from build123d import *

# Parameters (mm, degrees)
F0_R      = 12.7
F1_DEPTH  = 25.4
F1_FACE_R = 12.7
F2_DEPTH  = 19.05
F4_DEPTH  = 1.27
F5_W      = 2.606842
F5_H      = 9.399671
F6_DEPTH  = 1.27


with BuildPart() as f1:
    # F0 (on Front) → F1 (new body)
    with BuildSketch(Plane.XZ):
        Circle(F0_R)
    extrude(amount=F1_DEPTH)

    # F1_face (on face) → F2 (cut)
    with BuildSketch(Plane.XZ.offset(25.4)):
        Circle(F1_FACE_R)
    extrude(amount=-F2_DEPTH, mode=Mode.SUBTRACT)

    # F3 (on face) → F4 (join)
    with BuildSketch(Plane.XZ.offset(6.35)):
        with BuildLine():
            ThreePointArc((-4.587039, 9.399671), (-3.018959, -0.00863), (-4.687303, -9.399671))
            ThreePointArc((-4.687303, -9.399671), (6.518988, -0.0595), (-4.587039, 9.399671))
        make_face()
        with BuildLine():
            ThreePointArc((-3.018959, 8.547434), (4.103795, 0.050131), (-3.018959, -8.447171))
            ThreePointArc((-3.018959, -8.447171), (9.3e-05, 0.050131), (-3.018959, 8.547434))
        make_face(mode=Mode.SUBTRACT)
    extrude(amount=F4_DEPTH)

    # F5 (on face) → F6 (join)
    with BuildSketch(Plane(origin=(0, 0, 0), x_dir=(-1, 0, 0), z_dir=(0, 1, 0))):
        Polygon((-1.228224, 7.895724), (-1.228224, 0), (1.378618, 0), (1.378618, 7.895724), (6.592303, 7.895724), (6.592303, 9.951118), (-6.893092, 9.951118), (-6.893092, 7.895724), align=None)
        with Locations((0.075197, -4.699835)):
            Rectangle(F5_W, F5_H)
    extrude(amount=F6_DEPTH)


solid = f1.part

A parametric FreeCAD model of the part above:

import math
import FreeCAD as App
import Part
import Sketcher
from FreeCAD import Vector
Q = App.Units.Quantity


def add_polygon(sketch, points):
    """Adds a closed chain of lines whose ends are joined by coincident constraints."""
    first, n = sketch.GeometryCount, len(points)
    for a, b in zip(points, points[1:] + points[:1]):
        sketch.addGeometry(Part.LineSegment(App.Vector(*a, 0), App.Vector(*b, 0)), False)
    for i in range(n):
        sketch.addConstraint(Sketcher.Constraint("Coincident", first + i, 2, first + (i + 1) % n, 1))

doc = App.newDocument("Part")
body = doc.addObject("PartDesign::Body", "Body")

sketch1 = body.newObject("Sketcher::SketchObject", "Sketch")
sketch1.AttachmentSupport = (doc.getObject("XZ_Plane"), [""])
sketch1.MapMode = "FlatFace"
sketch1.addGeometry(Part.Circle(Vector(0, 0, 0), Vector(0, 0, 1), 13), False)
sketch1.addConstraint(Sketcher.Constraint("Coincident", 0, 3, -1, 1))
sketch1.addConstraint(Sketcher.Constraint("Diameter", 0, Q("1 in")))
pad1 = body.newObject("PartDesign::Pad", "Pad")
pad1.Profile = sketch1
pad1.Length = Q("1 in")

sketch2 = body.newObject("Sketcher::SketchObject", "Sketch001")
sketch2.AttachmentSupport = (doc.getObject("XZ_Plane"), [""])
sketch2.MapMode = "FlatFace"
sketch2.AttachmentOffset = App.Placement(Vector(0, 0, 1 * 25.4), App.Rotation())
sketch2.addGeometry(Part.Circle(Vector(0, 0, 0), Vector(0, 0, 1), 13), False)
sketch2.addConstraint(Sketcher.Constraint("Coincident", 0, 3, -1, 1))
sketch2.addConstraint(Sketcher.Constraint("Diameter", 0, Q("1 in")))
pocket1 = body.newObject("PartDesign::Pocket", "Pocket")
pocket1.Profile = sketch2
pocket1.Length = Q("0.75 in")

sketch3 = body.newObject("Sketcher::SketchObject", "Sketch002")
sketch3.AttachmentSupport = (doc.getObject("XZ_Plane"), [""])
sketch3.MapMode = "FlatFace"
sketch3.AttachmentOffset = App.Placement(Vector(0, 0, 0.25 * 25.4), App.Rotation())
sketch3.addGeometry(Part.ArcOfCircle(Part.Circle(Vector(-31, 0, 0), Vector(0, 0, 1), 28), math.radians(-20), math.radians(19)), False)
sketch3.addGeometry(Part.ArcOfCircle(Part.Circle(Vector(-3, 0, 0), Vector(0, 0, 1), 10), math.radians(-100), math.radians(99)), False)
sketch3.addGeometry(Part.ArcOfCircle(Part.Circle(Vector(-13, 0, 0), Vector(0, 0, 1), 13), math.radians(-39), math.radians(39)), False)
sketch3.addGeometry(Part.ArcOfCircle(Part.Circle(Vector(-5, 0, 0), Vector(0, 0, 1), 9), math.radians(-80), math.radians(80)), False)
sketch3.addConstraint(Sketcher.Constraint("Coincident", 0, 1, 1, 1))
sketch3.addConstraint(Sketcher.Constraint("Coincident", 1, 2, 0, 2))
sketch3.addConstraint(Sketcher.Constraint("Coincident", 2, 1, 3, 1))
sketch3.addConstraint(Sketcher.Constraint("Coincident", 3, 2, 2, 2))
sketch3.addConstraint(Sketcher.Constraint("Horizontal", 2, 3, 3, 3))
sketch3.addConstraint(Sketcher.Constraint("Vertical", 1, 3, 2, 1))
sketch3.addConstraint(Sketcher.Constraint("Radius", 2, Q("13.467609 mm")))
sketch3.addConstraint(Sketcher.Constraint("Radius", 0, Q("28.109333 mm")))
sketch3.addConstraint(Sketcher.Constraint("Radius", 1, Q("9.538082 mm")))
sketch3.addConstraint(Sketcher.Constraint("Radius", 3, Q("8.629933 mm")))
sketch3.addConstraint(Sketcher.Constraint("DistanceY", 0, 1, 2, 1, Q("0.0375 in")))
sketch3.addConstraint(Sketcher.Constraint("DistanceX", 1, 2, 3, 3, Q("0.060901 mm")))
sketch3.addConstraint(Sketcher.Constraint("DistanceY", 1, 3, 1, 2, Q("9.408302 mm")))
sketch3.addConstraint(Sketcher.Constraint("DistanceX", 0, 3, -1, 1, Q("31.127892 mm")))
sketch3.addConstraint(Sketcher.Constraint("DistanceX", 1, 3, -1, 1, Q("3.018959 mm")))
sketch3.addConstraint(Sketcher.Constraint("DistanceY", 1, 3, -1, 1, Q("0.008631 mm")))
pad2 = body.newObject("PartDesign::Pad", "Pad001")
pad2.Profile = sketch3
pad2.Length = Q("0.05 in")

sketch4 = body.newObject("Sketcher::SketchObject", "Sketch003")
sketch4.AttachmentSupport = (doc.getObject("XZ_Plane"), [""])
sketch4.MapMode = "FlatFace"
add_polygon(sketch4, [(6.9, 7.9), (1.2, 7.9), (1.2, -9.4), (-1.4, -9.4), (-1.4, 7.9), (-6.6, 7.9), (-6.6, 10), (6.9, 10)])
sketch4.addConstraint(Sketcher.Constraint("Horizontal", 0))
sketch4.addConstraint(Sketcher.Constraint("Vertical", 1))
sketch4.addConstraint(Sketcher.Constraint("Horizontal", 2))
sketch4.addConstraint(Sketcher.Constraint("Vertical", 3))
sketch4.addConstraint(Sketcher.Constraint("Horizontal", 4))
sketch4.addConstraint(Sketcher.Constraint("Vertical", 5))
sketch4.addConstraint(Sketcher.Constraint("Horizontal", 6))
sketch4.addConstraint(Sketcher.Constraint("Vertical", 7))
sketch4.addConstraint(Sketcher.Constraint("Horizontal", 0, 2, 3, 2))
sketch4.addConstraint(Sketcher.Constraint("DistanceX", 0, 2, 0, 1, Q("5.664868 mm")))
sketch4.addConstraint(Sketcher.Constraint("DistanceX", 2, 2, 2, 1, Q("2.606842 mm")))
sketch4.addConstraint(Sketcher.Constraint("DistanceX", 4, 2, 4, 1, Q("5.213685 mm")))
sketch4.addConstraint(Sketcher.Constraint("DistanceY", 1, 2, 1, 1, Q("17.295395 mm")))
sketch4.addConstraint(Sketcher.Constraint("DistanceY", 5, 1, 5, 2, Q("2.055394 mm")))
sketch4.addConstraint(Sketcher.Constraint("DistanceY", 1, 2, -1, 1, Q("9.39967 mm")))
sketch4.addConstraint(Sketcher.Constraint("DistanceX", -1, 1, 0, 2, Q("1.228224 mm")))
pad3 = body.newObject("PartDesign::Pad", "Pad002")
pad3.Profile = sketch4
pad3.Length = Q("0.05 in")
pad3.Reversed = True

doc.recompute()
